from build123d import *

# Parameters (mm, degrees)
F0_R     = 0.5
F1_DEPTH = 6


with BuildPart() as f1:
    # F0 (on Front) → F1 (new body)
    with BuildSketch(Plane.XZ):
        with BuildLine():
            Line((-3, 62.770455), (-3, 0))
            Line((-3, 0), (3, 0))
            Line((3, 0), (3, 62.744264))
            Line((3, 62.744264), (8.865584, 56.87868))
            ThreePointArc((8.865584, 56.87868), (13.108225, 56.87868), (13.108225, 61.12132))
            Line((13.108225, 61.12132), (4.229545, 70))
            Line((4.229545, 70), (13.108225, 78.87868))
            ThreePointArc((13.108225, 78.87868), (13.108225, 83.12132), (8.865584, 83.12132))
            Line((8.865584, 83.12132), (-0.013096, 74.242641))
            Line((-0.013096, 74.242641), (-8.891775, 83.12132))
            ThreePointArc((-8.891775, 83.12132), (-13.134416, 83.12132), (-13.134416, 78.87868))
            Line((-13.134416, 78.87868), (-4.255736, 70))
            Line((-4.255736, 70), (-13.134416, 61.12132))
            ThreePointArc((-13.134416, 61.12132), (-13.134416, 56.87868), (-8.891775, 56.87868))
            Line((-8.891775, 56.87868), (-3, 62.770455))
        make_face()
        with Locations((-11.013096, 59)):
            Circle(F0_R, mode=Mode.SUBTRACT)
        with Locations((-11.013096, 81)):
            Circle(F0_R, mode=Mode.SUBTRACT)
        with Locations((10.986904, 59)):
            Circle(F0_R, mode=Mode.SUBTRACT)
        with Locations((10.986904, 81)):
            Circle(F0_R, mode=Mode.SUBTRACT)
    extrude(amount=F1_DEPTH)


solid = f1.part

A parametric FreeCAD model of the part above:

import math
import FreeCAD as App
import Part
import Sketcher

V = App.Vector
Q = App.Units.Quantity

doc = App.newDocument("Part")
body = doc.addObject("PartDesign::Body", "Body")

sketch1 = doc.addObject("Sketcher::SketchObject", "Sketch")
body.addObject(sketch1)
sketch1.AttachmentSupport = (doc.XZ_Plane, [""])
sketch1.MapMode = "FlatFace"
sketch1.addGeometry([
    Part.LineSegment(V(-3, 62.8, 0), V(-3, 0, 0)),
    Part.LineSegment(V(-3, 0, 0), V(3, 0, 0)),
    Part.LineSegment(V(3, 0, 0), V(3, 62.7, 0)),
    Part.LineSegment(V(3, 62.7, 0), V(8.9, 56.9, 0)),
    Part.ArcOfCircle(Part.Circle(V(11, 59, 0), V(0, 0, 1), 3), math.radians(-135), math.radians(45)),
    Part.LineSegment(V(13.1, 61.1, 0), V(4.2, 70, 0)),
    Part.LineSegment(V(4.2, 70, 0), V(13.1, 78.9, 0)),
    Part.ArcOfCircle(Part.Circle(V(11, 81, 0), V(0, 0, 1), 3), math.radians(-45), math.radians(135)),
    Part.LineSegment(V(8.9, 83.1, 0), V(0, 74.2, 0)),
    Part.LineSegment(V(0, 74.2, 0), V(-8.9, 83.1, 0)),
    Part.ArcOfCircle(Part.Circle(V(-11, 81, 0), V(0, 0, 1), 3), math.radians(45), math.radians(225)),
    Part.LineSegment(V(-13.1, 78.9, 0), V(-4.3, 70, 0)),
    Part.LineSegment(V(-4.3, 70, 0), V(-13.1, 61.1, 0)),
    Part.ArcOfCircle(Part.Circle(V(-11, 59, 0), V(0, 0, 1), 3), math.radians(135), math.radians(315)),
    Part.LineSegment(V(-8.9, 56.9, 0), V(-3, 62.8, 0)),
    Part.Circle(V(-11, 59, 0), V(0, 0, 1), 0.5),
    Part.Circle(V(11, 59, 0), V(0, 0, 1), 0.5),
    Part.Circle(V(-11, 81, 0), V(0, 0, 1), 0.5),
    Part.Circle(V(11, 81, 0), V(0, 0, 1), 0.5),
], False)
sketch1.addConstraint([
    Sketcher.Constraint("Coincident", 0, 2, 1, 1),
    Sketcher.Constraint("Coincident", 1, 2, 2, 1),
    Sketcher.Constraint("Coincident", 2, 2, 3, 1),
    Sketcher.Constraint("Tangent", 3, 2, 4, 1),
    Sketcher.Constraint("Tangent", 4, 2, 5, 1),
    Sketcher.Constraint("Coincident", 5, 2, 6, 1),
    Sketcher.Constraint("Tangent", 6, 2, 7, 1),
    Sketcher.Constraint("Tangent", 7, 2, 8, 1),
    Sketcher.Constraint("Coincident", 8, 2, 9, 1),
    Sketcher.Constraint("Tangent", 9, 2, 10, 1),
    Sketcher.Constraint("Tangent", 10, 2, 11, 1),
    Sketcher.Constraint("Coincident", 11, 2, 12, 1),
    Sketcher.Constraint("Tangent", 12, 2, 13, 1),
    Sketcher.Constraint("Tangent", 13, 2, 14, 1),
    Sketcher.Constraint("Coincident", 14, 2, 0, 1),
    Sketcher.Constraint("Vertical", 0),
    Sketcher.Constraint("Horizontal", 1),
    Sketcher.Constraint("Vertical", 2),
    Sketcher.Constraint("Coincident", 15, 3, 13, 3),
    Sketcher.Constraint("Coincident", 16, 3, 4, 3),
    Sketcher.Constraint("Coincident", 17, 3, 10, 3),
    Sketcher.Constraint("Coincident", 18, 3, 7, 3),
    Sketcher.Constraint("Equal", 4, 7),
    Sketcher.Constraint("Equal", 7, 10),
    Sketcher.Constraint("Equal", 10, 13),
    Sketcher.Constraint("Equal", 15, 16),
    Sketcher.Constraint("Equal", 16, 17),
    Sketcher.Constraint("Equal", 17, 18),
    Sketcher.Constraint("Symmetric", 0, 2, 1, 2, -1, 1),
    Sketcher.Constraint("Parallel", 3, 5),
    Sketcher.Constraint("Perpendicular", 5, 6),
    Sketcher.Constraint("Parallel", 6, 8),
    Sketcher.Constraint("Perpendicular", 8, 9),
    Sketcher.Constraint("Parallel", 9, 11),
    Sketcher.Constraint("Perpendicular", 11, 12),
    Sketcher.Constraint("Parallel", 12, 14),
    Sketcher.Constraint("Horizontal", 7, 3, 10, 3),
    Sketcher.Constraint("Horizontal", 4, 3, 13, 3),
    Sketcher.Constraint("Horizontal", 7, 2, 9, 2),
    Sketcher.Constraint("Horizontal", 5, 2, 11, 2),
    Sketcher.Constraint("Vertical", 4, 3, 7, 3),
    Sketcher.Constraint("Equal", 6, 8),
    Sketcher.Constraint("Diameter", 15, Q("1 mm")),
    Sketcher.Constraint("Radius", 4, Q("3 mm")),
    Sketcher.Constraint("DistanceX", 1, 1, 1, 2, Q("6 mm")),
    Sketcher.Constraint("DistanceY", -1, 1, 4, 3, Q("59 mm")),
    Sketcher.Constraint("DistanceY", -1, 1, 7, 3, Q("81 mm")),
    Sketcher.Constraint("Distance", 3, Q("8.295188 mm")),
])
pad1 = doc.addObject("PartDesign::Pad", "Pad")
body.addObject(pad1)
pad1.Profile = sketch1
pad1.Length = 6

doc.recompute()
